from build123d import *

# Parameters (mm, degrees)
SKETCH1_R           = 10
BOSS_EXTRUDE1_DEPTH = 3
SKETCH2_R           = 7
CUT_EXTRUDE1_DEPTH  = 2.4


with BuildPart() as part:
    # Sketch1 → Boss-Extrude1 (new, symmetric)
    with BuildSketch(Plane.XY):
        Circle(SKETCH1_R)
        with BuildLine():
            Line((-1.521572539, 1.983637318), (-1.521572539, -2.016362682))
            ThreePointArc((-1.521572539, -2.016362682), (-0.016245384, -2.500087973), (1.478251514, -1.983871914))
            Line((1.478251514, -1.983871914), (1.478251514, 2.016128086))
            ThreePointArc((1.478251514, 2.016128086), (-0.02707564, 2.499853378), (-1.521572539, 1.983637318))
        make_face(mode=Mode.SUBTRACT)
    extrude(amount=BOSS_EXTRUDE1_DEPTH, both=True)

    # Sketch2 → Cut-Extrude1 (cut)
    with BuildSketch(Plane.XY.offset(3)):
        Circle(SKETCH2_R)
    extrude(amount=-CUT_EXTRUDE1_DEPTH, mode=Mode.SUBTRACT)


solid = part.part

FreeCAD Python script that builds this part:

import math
import FreeCAD as App
import Part
import Sketcher

V = App.Vector
Q = App.Units.Quantity

doc = App.newDocument("Part")
body = doc.addObject("PartDesign::Body", "Body")

# Sketch on XY plane
sketch1 = body.newObject("Sketcher::SketchObject", "Sketch")
sketch1.AttachmentSupport = (doc.getObject("XY_Plane"), [""])
sketch1.MapMode = "FlatFace"
sketch1.addGeometry([
    Part.Circle(V(0, 0, 0), V(0, 0, 1), 10),  # 0
    Part.LineSegment(V(-1.5, -2, 0), V(-1.5, 2, 0)),  # 1
    Part.ArcOfCircle(Part.Circle(V(0, 0, 0), V(0, 0, 1), 2.5), math.radians(54), math.radians(127)),  # 2
    Part.LineSegment(V(1.5, 2, 0), V(1.5, -2, 0)),  # 3
    Part.ArcOfCircle(Part.Circle(V(0, 0, 0), V(0, 0, 1), 2.5), math.radians(-126), math.radians(-53)),  # 4
], False)
sketch1.addConstraint([
    Sketcher.Constraint("Coincident", 1, 2, 2, 2),
    Sketcher.Constraint("Coincident", 2, 1, 3, 1),
    Sketcher.Constraint("Coincident", 3, 2, 4, 2),
    Sketcher.Constraint("Coincident", 4, 1, 1, 1),
    Sketcher.Constraint("Vertical", 1),
    Sketcher.Constraint("Vertical", 3),
    Sketcher.Constraint("Coincident", 0, 3, -1, 1),
    Sketcher.Constraint("Coincident", 2, 3, -1, 1),
    Sketcher.Constraint("Equal", 2, 4),
    Sketcher.Constraint("Equal", 1, 3),
    Sketcher.Constraint("Diameter", 0, Q("20 mm")),
    Sketcher.Constraint("Radius", 2, Q("2.5 mm")),
    Sketcher.Constraint("DistanceY", 1, 1, 1, 2, Q("4 mm")),
    Sketcher.Constraint("DistanceX", 4, 3, -1, 1, Q("0.043321 mm")),
    Sketcher.Constraint("DistanceX", -1, 1, 2, 1, Q("1.478252 mm")),
])
pad1 = body.newObject("PartDesign::Pad", "Pad")
pad1.Profile = sketch1
pad1.Length = 6
pad1.Midplane = True

# Sketch on XY plane
sketch2 = body.newObject("Sketcher::SketchObject", "Sketch001")
sketch2.AttachmentSupport = (doc.getObject("XY_Plane"), [""])
sketch2.MapMode = "FlatFace"
sketch2.AttachmentOffset = App.Placement(V(0, 0, 3), App.Rotation())
sketch2.addGeometry(Part.Circle(V(0, 0, 0), V(0, 0, 1), 7), False)
sketch2.addConstraint([
    Sketcher.Constraint("Coincident", 0, 3, -1, 1),
    Sketcher.Constraint("Diameter", 0, Q("14 mm")),
])
pocket1 = body.newObject("PartDesign::Pocket", "Pocket")
pocket1.Profile = sketch2
pocket1.Length = 2.4

doc.recompute()
